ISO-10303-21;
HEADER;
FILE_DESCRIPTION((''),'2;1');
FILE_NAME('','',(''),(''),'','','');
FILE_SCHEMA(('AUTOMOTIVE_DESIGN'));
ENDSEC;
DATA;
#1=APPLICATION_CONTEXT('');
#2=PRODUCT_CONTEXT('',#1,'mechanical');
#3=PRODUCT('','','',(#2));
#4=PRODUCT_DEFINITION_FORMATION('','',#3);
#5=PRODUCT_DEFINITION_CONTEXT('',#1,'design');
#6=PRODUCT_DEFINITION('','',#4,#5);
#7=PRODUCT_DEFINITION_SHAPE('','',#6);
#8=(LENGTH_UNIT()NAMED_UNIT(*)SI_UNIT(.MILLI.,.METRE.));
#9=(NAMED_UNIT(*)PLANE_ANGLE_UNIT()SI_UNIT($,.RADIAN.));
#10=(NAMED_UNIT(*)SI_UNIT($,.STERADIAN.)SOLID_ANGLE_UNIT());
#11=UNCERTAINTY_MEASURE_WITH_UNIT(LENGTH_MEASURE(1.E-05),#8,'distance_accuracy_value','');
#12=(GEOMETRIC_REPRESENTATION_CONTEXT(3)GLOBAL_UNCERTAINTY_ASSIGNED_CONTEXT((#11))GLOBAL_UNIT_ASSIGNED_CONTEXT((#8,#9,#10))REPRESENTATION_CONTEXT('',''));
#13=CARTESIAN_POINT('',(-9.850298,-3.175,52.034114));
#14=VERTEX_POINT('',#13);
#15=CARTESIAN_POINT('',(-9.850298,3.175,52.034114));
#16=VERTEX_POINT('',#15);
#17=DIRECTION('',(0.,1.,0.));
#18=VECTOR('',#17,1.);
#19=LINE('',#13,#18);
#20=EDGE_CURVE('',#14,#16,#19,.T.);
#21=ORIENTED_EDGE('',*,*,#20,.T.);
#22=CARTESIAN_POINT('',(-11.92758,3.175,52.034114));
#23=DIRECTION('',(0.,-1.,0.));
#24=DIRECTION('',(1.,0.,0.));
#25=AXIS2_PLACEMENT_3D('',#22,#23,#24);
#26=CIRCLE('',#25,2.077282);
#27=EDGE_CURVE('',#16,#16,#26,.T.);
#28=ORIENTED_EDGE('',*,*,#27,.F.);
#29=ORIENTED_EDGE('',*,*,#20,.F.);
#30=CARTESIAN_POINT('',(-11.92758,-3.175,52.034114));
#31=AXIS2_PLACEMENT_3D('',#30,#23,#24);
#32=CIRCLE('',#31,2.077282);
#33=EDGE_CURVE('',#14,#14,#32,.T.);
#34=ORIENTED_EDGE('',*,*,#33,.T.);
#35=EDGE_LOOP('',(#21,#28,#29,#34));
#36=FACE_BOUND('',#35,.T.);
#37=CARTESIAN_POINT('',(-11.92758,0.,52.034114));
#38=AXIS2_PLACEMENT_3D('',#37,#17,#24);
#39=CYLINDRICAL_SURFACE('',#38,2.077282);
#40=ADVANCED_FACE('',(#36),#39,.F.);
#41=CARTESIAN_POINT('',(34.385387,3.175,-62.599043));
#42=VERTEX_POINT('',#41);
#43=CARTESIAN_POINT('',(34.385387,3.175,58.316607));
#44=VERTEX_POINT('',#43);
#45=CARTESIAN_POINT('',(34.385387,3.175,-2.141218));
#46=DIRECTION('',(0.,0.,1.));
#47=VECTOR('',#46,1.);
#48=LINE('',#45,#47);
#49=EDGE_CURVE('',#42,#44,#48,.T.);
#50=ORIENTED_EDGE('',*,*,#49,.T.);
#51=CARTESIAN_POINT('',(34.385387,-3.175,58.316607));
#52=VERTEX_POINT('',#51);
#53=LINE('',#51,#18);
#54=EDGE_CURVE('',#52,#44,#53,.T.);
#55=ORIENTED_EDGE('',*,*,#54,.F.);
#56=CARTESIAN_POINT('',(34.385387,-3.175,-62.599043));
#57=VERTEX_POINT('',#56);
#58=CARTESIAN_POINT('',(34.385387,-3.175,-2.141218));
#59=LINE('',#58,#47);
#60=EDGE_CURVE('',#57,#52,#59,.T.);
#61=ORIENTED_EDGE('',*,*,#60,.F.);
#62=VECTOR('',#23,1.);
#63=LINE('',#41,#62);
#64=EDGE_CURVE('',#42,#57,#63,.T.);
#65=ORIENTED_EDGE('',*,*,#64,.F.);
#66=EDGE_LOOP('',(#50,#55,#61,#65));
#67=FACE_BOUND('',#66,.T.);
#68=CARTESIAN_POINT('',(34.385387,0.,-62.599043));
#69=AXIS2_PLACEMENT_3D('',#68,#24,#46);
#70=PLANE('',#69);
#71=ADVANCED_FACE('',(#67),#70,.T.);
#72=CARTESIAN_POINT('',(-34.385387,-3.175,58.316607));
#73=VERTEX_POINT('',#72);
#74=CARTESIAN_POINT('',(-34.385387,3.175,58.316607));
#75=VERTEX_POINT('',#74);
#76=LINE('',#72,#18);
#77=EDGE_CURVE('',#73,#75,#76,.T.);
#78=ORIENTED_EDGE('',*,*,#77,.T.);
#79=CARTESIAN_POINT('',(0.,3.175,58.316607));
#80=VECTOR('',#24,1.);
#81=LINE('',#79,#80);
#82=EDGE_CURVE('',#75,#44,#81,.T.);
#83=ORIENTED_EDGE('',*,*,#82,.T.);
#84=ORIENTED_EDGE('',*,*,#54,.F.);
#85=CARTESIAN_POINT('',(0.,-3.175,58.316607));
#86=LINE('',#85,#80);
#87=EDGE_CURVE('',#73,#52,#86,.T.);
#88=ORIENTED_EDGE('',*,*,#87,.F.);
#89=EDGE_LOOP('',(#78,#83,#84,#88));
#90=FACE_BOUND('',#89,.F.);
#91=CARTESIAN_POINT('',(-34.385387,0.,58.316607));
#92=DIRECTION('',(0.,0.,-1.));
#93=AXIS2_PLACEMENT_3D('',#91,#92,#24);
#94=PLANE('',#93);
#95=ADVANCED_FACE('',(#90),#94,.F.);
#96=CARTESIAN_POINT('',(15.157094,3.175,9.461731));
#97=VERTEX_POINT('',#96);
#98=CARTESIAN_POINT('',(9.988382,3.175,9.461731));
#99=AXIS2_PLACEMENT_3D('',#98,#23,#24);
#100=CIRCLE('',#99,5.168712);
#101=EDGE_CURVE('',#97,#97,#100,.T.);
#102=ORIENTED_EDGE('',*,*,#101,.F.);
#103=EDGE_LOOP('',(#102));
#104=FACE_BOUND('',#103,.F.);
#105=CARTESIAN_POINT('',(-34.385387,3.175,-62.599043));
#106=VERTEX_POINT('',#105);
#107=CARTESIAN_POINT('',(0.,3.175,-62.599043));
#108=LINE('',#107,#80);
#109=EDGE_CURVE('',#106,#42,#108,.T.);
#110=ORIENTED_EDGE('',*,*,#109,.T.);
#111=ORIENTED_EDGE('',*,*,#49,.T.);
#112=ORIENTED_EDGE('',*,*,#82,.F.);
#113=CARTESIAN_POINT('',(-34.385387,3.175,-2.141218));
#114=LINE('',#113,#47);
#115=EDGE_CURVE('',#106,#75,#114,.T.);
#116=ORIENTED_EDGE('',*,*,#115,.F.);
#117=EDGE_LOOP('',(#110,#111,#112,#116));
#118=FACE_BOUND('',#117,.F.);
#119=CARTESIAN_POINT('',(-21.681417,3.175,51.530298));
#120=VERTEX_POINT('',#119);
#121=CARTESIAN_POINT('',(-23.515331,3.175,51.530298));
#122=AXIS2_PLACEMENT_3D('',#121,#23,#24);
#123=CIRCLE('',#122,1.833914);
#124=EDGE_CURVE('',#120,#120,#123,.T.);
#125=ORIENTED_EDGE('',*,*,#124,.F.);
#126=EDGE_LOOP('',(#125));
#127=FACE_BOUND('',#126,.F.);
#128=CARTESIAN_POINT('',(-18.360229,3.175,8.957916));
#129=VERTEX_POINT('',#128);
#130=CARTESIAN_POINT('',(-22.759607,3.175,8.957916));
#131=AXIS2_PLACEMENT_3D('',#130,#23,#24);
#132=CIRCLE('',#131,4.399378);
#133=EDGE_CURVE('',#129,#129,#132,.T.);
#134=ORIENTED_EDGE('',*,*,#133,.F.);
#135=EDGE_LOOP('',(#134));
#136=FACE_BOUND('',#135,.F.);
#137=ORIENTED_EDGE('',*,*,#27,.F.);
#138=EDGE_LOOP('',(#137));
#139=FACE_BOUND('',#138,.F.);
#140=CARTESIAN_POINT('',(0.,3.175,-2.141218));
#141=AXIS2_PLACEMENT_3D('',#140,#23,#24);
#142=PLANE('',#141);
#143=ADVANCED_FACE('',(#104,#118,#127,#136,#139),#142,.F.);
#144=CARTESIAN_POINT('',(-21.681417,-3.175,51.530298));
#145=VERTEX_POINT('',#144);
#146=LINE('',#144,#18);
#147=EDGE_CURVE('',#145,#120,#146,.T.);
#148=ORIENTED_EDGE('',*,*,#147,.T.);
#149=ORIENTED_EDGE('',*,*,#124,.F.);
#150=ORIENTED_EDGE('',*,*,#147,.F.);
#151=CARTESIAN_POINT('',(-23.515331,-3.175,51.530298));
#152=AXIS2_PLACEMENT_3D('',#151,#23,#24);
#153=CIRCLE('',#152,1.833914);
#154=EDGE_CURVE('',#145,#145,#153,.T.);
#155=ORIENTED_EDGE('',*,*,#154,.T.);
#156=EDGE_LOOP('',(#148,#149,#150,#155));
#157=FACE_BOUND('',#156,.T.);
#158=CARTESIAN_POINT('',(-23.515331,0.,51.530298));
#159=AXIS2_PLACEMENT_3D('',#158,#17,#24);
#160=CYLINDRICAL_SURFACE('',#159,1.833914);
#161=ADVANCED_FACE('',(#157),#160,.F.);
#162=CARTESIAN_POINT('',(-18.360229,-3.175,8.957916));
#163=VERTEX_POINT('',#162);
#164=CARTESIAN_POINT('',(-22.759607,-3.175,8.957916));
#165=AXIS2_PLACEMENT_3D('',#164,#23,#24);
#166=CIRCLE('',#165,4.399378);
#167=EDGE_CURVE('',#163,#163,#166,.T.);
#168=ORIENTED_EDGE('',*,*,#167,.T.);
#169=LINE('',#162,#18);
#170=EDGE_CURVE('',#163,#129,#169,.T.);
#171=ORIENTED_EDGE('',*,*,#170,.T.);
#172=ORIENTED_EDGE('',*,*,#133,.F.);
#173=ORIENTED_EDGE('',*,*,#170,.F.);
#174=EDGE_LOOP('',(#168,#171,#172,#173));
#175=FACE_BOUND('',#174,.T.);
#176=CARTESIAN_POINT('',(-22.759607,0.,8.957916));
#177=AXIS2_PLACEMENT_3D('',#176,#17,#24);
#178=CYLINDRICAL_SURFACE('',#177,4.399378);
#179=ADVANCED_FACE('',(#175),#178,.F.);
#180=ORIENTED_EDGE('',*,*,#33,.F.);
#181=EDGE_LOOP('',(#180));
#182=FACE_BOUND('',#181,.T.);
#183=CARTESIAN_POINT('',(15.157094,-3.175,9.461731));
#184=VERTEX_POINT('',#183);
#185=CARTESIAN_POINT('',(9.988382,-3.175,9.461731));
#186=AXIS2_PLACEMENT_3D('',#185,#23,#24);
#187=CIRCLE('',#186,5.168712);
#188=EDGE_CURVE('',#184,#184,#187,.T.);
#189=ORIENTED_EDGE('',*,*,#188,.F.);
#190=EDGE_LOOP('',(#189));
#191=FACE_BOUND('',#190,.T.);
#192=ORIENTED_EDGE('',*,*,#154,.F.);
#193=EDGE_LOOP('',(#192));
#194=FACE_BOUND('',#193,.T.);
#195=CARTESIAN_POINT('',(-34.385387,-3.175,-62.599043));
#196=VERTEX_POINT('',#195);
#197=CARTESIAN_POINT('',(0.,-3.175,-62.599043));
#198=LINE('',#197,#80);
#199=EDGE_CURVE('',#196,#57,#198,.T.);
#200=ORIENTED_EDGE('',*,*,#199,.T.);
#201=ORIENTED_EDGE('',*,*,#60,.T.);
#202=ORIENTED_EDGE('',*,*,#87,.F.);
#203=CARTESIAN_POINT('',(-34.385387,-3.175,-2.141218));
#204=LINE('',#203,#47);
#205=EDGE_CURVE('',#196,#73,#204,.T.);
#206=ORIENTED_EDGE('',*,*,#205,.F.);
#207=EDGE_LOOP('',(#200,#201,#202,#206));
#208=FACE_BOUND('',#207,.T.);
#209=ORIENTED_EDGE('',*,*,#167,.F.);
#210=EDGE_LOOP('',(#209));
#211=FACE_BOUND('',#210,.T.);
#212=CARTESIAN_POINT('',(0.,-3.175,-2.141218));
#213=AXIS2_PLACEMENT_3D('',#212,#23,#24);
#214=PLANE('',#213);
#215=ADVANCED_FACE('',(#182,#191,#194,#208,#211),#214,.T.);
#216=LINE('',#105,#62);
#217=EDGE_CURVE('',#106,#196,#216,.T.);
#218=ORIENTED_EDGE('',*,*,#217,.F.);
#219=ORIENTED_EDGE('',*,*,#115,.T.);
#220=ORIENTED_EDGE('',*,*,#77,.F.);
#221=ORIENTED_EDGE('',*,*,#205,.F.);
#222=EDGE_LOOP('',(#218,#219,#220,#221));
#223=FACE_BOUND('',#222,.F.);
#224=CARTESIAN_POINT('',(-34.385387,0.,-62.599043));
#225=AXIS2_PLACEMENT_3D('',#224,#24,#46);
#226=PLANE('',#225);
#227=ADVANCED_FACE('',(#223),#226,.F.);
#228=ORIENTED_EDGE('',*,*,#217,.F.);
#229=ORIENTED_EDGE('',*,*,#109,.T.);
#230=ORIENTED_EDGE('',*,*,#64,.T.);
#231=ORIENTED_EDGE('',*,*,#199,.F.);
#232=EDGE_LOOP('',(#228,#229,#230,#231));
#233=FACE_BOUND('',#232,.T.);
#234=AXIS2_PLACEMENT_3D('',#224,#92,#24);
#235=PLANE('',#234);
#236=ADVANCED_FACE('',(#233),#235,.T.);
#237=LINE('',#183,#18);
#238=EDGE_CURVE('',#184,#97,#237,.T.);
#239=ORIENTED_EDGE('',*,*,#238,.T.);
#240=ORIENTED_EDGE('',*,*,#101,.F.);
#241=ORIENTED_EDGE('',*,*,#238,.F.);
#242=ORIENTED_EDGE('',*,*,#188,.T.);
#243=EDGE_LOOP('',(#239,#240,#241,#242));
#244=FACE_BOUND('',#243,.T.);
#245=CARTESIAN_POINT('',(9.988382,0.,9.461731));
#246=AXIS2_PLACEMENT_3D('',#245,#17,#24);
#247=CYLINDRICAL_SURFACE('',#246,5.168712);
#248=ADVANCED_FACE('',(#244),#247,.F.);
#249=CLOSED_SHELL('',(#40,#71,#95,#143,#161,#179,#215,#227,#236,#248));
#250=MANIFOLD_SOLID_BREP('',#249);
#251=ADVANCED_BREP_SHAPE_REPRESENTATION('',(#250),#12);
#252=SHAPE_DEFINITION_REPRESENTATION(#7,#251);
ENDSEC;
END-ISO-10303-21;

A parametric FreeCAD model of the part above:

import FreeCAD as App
import Part
import Sketcher
from FreeCAD import Vector
Q = App.Units.Quantity


def add_polygon(sketch, points):
    """Adds a closed chain of lines whose ends are joined by coincident constraints."""
    first, n = sketch.GeometryCount, len(points)
    for a, b in zip(points, points[1:] + points[:1]):
        sketch.addGeometry(Part.LineSegment(App.Vector(*a, 0), App.Vector(*b, 0)), False)
    for i in range(n):
        sketch.addConstraint(Sketcher.Constraint("Coincident", first + i, 2, first + (i + 1) % n, 1))

doc = App.newDocument("Part")
body = doc.addObject("PartDesign::Body", "Body")

# Sketch on XZ plane
sketch1 = body.newObject("Sketcher::SketchObject", "Sketch")
sketch1.AttachmentSupport = (doc.getObject("XZ_Plane"), [""])
sketch1.MapMode = "FlatFace"
add_polygon(sketch1, [(-34.385387, 58.316607), (-34.385387, -62.599043), (34.385387, -62.599043), (34.385387, 58.316607)])  # lines 0-3
sketch1.addGeometry(Part.Circle(Vector(-22.759607, 8.957916, 0), Vector(0, 0, 1), 4.399378), False)  # 4
sketch1.addGeometry(Part.Circle(Vector(9.988382, 9.461731, 0), Vector(0, 0, 1), 5.168712), False)  # 5
sketch1.addGeometry(Part.Circle(Vector(-23.515331, 51.530298, 0), Vector(0, 0, 1), 1.833914), False)  # 6
sketch1.addGeometry(Part.Circle(Vector(-11.92758, 52.034114, 0), Vector(0, 0, 1), 2.077282), False)  # 7
sketch1.addConstraint([
    Sketcher.Constraint("Vertical", 0),
    Sketcher.Constraint("Horizontal", 1),
    Sketcher.Constraint("Vertical", 2),
    Sketcher.Constraint("Horizontal", 3),
    Sketcher.Constraint("Diameter", 6, 3.667828),
    Sketcher.Constraint("Diameter", 4, 8.798756),
    Sketcher.Constraint("Diameter", 5, 10.337424),
    Sketcher.Constraint("Diameter", 7, 4.154564),
    Sketcher.Constraint("DistanceY", 0, 2, 0, 1, 120.91565),
    Sketcher.Constraint("DistanceY", -1, 1, 6, 3, 51.530298),
    Sketcher.Constraint("DistanceY", 4, 3, 7, 3, 43.076198),
    Sketcher.Constraint("DistanceX", 1, 1, 1, 2, 68.770774),
    Sketcher.Constraint("DistanceY", -1, 1, 5, 3, 9.461731),
    Sketcher.Constraint("DistanceX", 6, 3, -1, 1, 23.515331),
    Sketcher.Constraint("DistanceX", 7, 3, -1, 1, 11.92758),
    Sketcher.Constraint("DistanceX", 4, 3, 5, 3, 32.747989),
    Sketcher.Constraint("DistanceX", 0, 2, 4, 3, 11.62578),
    Sketcher.Constraint("DistanceY", 0, 2, 4, 3, 71.556959),
    Sketcher.Constraint("DistanceY", 0, 2, 6, 3, 114.129341),
    Sketcher.Constraint("DistanceX", 4, 3, -1, 1, 22.759607),
])
pad1 = body.newObject("PartDesign::Pad", "Pad")
pad1.Profile = sketch1
pad1.Length = Q("0.25 in")
pad1.Midplane = True

doc.recompute()
